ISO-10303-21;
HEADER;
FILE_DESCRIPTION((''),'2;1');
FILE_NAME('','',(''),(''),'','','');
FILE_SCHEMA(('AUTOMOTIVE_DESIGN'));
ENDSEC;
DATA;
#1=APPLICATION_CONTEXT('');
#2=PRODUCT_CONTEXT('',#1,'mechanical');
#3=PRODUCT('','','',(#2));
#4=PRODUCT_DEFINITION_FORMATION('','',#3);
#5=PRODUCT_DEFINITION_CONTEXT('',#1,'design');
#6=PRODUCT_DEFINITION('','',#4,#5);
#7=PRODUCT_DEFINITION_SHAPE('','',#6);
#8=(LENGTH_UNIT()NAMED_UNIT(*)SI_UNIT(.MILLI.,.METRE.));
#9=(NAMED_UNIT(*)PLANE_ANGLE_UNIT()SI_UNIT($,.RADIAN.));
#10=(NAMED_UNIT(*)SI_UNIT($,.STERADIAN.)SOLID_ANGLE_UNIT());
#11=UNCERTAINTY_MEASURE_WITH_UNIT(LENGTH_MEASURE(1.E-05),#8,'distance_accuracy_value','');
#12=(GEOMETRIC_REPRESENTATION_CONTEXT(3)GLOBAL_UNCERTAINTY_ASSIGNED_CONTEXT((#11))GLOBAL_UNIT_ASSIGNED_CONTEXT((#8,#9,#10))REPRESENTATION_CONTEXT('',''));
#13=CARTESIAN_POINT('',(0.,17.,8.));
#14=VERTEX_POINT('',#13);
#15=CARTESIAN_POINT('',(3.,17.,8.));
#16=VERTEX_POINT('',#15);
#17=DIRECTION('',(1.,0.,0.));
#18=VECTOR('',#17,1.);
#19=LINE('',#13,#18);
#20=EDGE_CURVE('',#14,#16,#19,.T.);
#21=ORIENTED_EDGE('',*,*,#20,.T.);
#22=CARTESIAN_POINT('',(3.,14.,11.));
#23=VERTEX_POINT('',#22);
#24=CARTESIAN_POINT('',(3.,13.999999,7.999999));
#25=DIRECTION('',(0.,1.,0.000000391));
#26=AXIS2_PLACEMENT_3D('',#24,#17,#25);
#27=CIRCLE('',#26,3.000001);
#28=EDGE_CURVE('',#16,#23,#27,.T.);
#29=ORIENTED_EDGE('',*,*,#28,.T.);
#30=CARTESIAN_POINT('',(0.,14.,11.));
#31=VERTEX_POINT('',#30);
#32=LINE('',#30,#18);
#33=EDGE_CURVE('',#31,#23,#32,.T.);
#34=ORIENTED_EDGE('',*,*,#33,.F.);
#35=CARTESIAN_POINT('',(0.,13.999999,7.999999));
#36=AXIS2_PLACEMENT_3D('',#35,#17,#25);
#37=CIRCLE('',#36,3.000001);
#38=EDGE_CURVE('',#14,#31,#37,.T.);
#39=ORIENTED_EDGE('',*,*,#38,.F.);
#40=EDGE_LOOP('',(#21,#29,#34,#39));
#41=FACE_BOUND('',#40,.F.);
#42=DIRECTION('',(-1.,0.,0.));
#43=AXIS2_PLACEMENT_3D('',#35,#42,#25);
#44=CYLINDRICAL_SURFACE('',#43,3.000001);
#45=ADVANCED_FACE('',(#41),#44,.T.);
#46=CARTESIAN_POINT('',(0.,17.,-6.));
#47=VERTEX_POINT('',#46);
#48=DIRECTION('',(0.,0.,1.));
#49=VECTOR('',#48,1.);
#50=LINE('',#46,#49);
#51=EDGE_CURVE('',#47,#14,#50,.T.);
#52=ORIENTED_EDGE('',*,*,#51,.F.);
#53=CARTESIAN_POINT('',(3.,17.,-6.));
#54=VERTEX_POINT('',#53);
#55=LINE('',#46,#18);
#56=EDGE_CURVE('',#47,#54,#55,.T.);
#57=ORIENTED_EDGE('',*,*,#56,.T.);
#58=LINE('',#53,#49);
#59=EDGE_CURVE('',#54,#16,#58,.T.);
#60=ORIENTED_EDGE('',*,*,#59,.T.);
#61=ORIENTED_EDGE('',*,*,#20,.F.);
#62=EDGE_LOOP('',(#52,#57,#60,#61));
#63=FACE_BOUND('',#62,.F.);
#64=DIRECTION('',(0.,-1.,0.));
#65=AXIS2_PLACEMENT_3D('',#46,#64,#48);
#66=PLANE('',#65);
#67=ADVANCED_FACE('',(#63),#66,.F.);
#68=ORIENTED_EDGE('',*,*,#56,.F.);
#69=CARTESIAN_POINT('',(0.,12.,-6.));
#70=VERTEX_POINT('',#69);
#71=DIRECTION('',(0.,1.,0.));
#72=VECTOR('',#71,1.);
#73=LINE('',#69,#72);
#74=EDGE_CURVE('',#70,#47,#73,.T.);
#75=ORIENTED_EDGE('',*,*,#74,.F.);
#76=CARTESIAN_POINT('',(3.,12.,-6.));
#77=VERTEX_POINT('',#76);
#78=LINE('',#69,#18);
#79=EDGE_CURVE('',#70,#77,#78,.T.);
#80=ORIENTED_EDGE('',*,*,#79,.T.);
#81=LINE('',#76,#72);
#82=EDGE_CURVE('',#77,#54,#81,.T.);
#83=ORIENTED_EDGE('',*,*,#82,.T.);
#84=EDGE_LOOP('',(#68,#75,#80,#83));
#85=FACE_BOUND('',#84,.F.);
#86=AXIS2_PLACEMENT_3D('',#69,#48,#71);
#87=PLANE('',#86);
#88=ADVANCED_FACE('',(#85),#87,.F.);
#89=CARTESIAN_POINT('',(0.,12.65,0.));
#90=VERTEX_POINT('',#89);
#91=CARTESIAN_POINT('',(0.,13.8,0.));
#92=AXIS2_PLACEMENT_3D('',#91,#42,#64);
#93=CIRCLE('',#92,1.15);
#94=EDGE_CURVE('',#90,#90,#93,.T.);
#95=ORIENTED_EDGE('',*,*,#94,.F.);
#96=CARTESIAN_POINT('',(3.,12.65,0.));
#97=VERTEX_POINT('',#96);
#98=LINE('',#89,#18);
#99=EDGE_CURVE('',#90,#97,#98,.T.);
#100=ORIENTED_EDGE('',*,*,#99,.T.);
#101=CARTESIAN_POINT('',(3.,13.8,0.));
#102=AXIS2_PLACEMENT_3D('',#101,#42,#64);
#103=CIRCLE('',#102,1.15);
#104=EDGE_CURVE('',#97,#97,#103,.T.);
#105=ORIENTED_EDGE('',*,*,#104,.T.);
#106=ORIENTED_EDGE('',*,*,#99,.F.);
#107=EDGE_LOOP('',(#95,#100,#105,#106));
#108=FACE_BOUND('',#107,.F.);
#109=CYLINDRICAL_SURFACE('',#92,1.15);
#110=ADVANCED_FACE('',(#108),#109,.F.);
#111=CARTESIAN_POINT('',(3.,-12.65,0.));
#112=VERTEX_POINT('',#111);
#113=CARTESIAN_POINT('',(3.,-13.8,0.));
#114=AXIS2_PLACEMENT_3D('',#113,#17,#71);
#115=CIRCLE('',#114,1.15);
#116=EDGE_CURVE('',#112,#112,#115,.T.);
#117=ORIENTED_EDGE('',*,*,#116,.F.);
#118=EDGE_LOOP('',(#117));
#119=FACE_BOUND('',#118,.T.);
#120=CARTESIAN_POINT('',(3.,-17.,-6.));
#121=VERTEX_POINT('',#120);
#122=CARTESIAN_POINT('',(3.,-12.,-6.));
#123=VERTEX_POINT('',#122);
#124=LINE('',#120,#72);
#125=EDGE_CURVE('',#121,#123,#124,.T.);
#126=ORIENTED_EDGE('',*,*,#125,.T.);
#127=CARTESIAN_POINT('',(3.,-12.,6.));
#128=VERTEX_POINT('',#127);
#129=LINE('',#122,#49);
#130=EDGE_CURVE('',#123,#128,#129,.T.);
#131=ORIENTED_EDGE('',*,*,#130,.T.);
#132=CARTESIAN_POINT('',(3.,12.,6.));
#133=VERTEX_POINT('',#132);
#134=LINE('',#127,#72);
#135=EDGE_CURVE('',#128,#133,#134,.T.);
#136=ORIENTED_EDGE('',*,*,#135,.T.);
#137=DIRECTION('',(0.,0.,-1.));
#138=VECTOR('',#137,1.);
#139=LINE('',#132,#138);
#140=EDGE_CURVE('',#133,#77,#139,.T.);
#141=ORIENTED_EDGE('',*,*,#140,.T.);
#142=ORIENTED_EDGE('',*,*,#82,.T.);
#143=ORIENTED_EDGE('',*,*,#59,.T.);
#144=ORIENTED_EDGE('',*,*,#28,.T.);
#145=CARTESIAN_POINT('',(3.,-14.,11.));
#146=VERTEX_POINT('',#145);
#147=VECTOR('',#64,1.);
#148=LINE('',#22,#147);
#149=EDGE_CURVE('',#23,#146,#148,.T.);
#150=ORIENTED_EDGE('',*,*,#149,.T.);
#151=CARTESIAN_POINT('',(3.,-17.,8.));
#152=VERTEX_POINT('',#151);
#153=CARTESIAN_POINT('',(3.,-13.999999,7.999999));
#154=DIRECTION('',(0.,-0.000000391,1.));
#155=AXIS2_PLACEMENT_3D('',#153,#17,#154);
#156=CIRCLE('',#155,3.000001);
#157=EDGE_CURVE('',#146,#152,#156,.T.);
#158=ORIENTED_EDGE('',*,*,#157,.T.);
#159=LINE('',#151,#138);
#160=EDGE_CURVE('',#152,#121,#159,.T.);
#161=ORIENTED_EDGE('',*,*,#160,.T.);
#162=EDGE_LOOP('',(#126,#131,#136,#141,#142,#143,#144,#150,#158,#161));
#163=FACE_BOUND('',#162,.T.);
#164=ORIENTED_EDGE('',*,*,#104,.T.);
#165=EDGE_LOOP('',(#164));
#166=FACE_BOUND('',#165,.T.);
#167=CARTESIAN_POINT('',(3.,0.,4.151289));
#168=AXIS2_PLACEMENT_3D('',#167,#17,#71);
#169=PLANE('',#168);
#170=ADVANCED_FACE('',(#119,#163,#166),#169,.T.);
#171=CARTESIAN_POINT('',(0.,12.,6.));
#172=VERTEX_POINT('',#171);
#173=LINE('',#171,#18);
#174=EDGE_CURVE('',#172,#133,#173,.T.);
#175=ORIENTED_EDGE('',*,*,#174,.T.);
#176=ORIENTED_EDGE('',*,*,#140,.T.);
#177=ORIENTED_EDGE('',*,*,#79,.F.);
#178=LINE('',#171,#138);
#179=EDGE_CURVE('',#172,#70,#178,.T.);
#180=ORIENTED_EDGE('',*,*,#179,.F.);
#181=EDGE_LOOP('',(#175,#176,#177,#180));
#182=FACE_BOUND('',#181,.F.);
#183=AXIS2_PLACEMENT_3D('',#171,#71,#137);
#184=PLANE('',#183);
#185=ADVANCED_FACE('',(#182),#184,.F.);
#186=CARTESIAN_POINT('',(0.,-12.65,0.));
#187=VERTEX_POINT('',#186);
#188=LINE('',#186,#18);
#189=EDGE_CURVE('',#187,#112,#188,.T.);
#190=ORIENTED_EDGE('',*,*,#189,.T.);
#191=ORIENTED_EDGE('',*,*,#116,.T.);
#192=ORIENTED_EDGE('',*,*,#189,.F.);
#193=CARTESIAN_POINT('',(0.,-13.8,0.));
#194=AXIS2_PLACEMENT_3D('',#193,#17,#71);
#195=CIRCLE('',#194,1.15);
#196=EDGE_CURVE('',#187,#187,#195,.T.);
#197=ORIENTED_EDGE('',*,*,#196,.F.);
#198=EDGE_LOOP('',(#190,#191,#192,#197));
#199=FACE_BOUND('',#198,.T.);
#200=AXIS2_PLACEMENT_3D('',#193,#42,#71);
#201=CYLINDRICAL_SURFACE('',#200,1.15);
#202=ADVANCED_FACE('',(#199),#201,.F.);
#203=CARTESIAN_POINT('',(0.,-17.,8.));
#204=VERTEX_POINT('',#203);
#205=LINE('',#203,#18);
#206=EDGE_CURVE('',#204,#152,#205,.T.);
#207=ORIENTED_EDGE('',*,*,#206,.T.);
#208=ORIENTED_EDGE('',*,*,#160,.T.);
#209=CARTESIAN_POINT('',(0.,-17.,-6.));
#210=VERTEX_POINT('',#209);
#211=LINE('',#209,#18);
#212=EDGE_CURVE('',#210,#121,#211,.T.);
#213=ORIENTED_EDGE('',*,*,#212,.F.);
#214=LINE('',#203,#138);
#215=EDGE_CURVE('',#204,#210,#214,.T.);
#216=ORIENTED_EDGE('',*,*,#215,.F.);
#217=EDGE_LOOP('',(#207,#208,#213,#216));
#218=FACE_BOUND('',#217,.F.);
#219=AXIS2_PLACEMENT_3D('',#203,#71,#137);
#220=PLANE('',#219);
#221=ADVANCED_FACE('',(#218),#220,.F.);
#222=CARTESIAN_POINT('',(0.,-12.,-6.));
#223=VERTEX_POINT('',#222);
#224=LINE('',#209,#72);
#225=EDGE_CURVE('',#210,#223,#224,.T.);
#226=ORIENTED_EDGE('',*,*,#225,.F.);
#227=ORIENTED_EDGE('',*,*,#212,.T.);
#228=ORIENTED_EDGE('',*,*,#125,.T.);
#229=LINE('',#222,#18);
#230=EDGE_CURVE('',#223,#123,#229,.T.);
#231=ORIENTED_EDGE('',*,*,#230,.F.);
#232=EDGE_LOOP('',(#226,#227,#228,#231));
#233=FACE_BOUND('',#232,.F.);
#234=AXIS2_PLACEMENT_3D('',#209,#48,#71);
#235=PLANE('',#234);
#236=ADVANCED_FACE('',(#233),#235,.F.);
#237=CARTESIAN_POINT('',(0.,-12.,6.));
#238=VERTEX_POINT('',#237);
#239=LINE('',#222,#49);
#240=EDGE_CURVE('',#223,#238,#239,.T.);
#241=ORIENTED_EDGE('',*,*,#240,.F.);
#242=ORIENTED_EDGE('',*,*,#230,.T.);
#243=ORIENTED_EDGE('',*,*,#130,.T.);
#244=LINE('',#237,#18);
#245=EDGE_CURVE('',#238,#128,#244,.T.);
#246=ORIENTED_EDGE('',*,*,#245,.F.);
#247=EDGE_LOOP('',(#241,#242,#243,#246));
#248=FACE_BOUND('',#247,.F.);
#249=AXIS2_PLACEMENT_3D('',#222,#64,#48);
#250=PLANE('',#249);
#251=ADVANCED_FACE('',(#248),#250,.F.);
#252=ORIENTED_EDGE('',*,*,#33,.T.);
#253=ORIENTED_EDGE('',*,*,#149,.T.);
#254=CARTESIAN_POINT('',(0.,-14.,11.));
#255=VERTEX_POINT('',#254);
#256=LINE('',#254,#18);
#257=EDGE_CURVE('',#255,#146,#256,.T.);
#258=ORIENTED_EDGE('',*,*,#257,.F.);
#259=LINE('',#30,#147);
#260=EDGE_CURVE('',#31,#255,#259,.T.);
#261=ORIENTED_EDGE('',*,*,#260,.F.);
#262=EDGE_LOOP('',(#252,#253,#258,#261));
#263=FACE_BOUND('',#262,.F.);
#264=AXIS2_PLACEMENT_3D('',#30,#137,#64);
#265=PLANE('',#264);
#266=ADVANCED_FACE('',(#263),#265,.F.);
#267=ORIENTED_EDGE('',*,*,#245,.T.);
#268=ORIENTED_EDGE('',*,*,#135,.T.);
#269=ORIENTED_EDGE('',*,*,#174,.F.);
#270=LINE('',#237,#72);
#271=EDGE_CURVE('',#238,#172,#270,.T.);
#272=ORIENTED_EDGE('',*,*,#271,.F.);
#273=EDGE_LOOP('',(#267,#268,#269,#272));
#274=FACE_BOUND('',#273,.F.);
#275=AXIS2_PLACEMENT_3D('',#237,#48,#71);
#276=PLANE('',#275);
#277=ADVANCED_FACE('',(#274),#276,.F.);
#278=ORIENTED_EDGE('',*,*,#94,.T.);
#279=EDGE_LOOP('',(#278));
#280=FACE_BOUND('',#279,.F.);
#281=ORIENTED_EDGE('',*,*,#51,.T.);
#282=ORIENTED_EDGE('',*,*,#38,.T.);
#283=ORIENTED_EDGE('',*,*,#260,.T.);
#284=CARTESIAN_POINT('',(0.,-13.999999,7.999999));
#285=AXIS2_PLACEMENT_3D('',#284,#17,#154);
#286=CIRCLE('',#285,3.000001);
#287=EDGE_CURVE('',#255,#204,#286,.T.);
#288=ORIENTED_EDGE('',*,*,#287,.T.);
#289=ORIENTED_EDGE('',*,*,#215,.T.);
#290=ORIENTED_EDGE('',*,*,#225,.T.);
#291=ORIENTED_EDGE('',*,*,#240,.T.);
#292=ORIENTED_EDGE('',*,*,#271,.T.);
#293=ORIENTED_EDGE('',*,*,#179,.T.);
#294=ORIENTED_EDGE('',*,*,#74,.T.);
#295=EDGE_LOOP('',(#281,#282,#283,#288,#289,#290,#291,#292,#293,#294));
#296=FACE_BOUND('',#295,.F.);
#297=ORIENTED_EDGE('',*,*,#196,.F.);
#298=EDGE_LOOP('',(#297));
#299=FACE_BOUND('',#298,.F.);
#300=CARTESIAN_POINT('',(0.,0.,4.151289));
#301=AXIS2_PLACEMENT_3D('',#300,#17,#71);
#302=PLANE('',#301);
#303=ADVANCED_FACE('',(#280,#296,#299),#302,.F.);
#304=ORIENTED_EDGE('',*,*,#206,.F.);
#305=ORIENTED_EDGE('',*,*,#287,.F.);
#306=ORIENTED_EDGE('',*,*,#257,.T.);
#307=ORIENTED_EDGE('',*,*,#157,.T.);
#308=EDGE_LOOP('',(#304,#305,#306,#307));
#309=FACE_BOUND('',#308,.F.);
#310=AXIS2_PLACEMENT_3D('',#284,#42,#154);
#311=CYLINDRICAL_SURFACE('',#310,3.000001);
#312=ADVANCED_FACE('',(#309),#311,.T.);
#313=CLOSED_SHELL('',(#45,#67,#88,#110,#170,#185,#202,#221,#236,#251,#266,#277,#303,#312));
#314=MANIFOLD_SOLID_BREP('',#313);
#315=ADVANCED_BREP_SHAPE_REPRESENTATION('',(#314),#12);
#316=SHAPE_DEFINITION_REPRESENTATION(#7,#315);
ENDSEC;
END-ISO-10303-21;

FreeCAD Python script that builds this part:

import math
import FreeCAD as App
import Part
import Sketcher
Q = App.Units.Quantity

doc = App.newDocument("Part")
params = doc.addObject("Spreadsheet::Sheet", "Params")
for row, (alias, value) in enumerate([
    ("sketch1_radius", "3.000001 mm"),
    ("sketch1_diameter", "2.3 mm"),
    ("sketch1_width", "24 mm"),
    ("sketch1_width2", "5 mm"),
    ("sketch1_height", "12 mm"),
    ("pad1_length", "3 mm"),
], start=1):
    params.set(f"A{row}", alias)
    params.set(f"B{row}", "=" + value)
    params.setAlias(f"B{row}", alias)

body = doc.addObject("PartDesign::Body", "Body")

sketch1 = doc.addObject("Sketcher::SketchObject", "Sketch")
body.addObject(sketch1)
sketch1.AttachmentSupport = (doc.YZ_Plane, [""])
sketch1.MapMode = "FlatFace"
sketch1.addGeometry([
    Part.LineSegment(App.Vector(-12, 6, 0), App.Vector(12, 6, 0)),
    Part.LineSegment(App.Vector(12, 6, 0), App.Vector(12, -6, 0)),
    Part.LineSegment(App.Vector(12, -6, 0), App.Vector(17, -6, 0)),
    Part.LineSegment(App.Vector(17, -6, 0), App.Vector(17, 8, 0)),
    Part.ArcOfCircle(Part.Circle(App.Vector(14, 8, 0), App.Vector(0, 0, 1), 3), math.radians(0), math.radians(90)),
    Part.LineSegment(App.Vector(14, 11, 0), App.Vector(-14, 11, 0)),
    Part.ArcOfCircle(Part.Circle(App.Vector(-14, 8, 0), App.Vector(0, 0, 1), 3), math.radians(90), math.radians(180)),
    Part.LineSegment(App.Vector(-17, 8, 0), App.Vector(-17, -6, 0)),
    Part.LineSegment(App.Vector(-17, -6, 0), App.Vector(-12, -6, 0)),
    Part.LineSegment(App.Vector(-12, -6, 0), App.Vector(-12, 6, 0)),
    Part.Circle(App.Vector(-13.8, 0, 0), App.Vector(0, 0, 1), 1.1),
    Part.Circle(App.Vector(13.8, 0, 0), App.Vector(0, 0, 1), 1.1),
], False)
sketch1.addConstraint([
    Sketcher.Constraint("Coincident", 0, 2, 1, 1),
    Sketcher.Constraint("Coincident", 1, 2, 2, 1),
    Sketcher.Constraint("Coincident", 2, 2, 3, 1),
    Sketcher.Constraint("Tangent", 3, 2, 4, 1),
    Sketcher.Constraint("Tangent", 4, 2, 5, 1),
    Sketcher.Constraint("Tangent", 5, 2, 6, 1),
    Sketcher.Constraint("Tangent", 6, 2, 7, 1),
    Sketcher.Constraint("Coincident", 7, 2, 8, 1),
    Sketcher.Constraint("Coincident", 8, 2, 9, 1),
    Sketcher.Constraint("Coincident", 9, 2, 0, 1),
    Sketcher.Constraint("Horizontal", 0),
    Sketcher.Constraint("Vertical", 1),
    Sketcher.Constraint("Horizontal", 2),
    Sketcher.Constraint("Vertical", 3),
    Sketcher.Constraint("Horizontal", 5),
    Sketcher.Constraint("Vertical", 7),
    Sketcher.Constraint("Horizontal", 8),
    Sketcher.Constraint("Vertical", 9),
    Sketcher.Constraint("Equal", 4, 6),
    Sketcher.Constraint("Equal", 10, 11),
    Sketcher.Constraint("Symmetric", 10, 3, 11, 3, -1, 1),
    Sketcher.Constraint("Symmetric", 0, 2, 8, 2, -1, 1),
    Sketcher.Constraint("Symmetric", 2, 2, 7, 2, -2),
    Sketcher.Constraint("PointOnObject", 10, 3, -1),
    Sketcher.Constraint("Radius", 4, Q("3.000001 mm")),
    Sketcher.Constraint("Diameter", 10, Q("2.3 mm")),
    Sketcher.Constraint("DistanceX", 0, 1, 0, 2, Q("24 mm")),
    Sketcher.Constraint("DistanceX", 2, 1, 2, 2, Q("5 mm")),
    Sketcher.Constraint("DistanceY", 1, 2, 1, 1, Q("12 mm")),
    Sketcher.Constraint("DistanceY", 3, 1, 3, 2, Q("14 mm")),
    Sketcher.Constraint("DistanceX", 10, 3, -1, 1, Q("13.8 mm")),
])
sketch1.setExpression("Constraints[24]", "Params.sketch1_radius")
sketch1.setExpression("Constraints[25]", "Params.sketch1_diameter")
sketch1.setExpression("Constraints[26]", "Params.sketch1_width")
sketch1.setExpression("Constraints[27]", "Params.sketch1_width2")
sketch1.setExpression("Constraints[28]", "Params.sketch1_height")
pad1 = doc.addObject("PartDesign::Pad", "Pad")
body.addObject(pad1)
pad1.Profile = sketch1
pad1.setExpression("Length", "Params.pad1_length")

doc.recompute()
